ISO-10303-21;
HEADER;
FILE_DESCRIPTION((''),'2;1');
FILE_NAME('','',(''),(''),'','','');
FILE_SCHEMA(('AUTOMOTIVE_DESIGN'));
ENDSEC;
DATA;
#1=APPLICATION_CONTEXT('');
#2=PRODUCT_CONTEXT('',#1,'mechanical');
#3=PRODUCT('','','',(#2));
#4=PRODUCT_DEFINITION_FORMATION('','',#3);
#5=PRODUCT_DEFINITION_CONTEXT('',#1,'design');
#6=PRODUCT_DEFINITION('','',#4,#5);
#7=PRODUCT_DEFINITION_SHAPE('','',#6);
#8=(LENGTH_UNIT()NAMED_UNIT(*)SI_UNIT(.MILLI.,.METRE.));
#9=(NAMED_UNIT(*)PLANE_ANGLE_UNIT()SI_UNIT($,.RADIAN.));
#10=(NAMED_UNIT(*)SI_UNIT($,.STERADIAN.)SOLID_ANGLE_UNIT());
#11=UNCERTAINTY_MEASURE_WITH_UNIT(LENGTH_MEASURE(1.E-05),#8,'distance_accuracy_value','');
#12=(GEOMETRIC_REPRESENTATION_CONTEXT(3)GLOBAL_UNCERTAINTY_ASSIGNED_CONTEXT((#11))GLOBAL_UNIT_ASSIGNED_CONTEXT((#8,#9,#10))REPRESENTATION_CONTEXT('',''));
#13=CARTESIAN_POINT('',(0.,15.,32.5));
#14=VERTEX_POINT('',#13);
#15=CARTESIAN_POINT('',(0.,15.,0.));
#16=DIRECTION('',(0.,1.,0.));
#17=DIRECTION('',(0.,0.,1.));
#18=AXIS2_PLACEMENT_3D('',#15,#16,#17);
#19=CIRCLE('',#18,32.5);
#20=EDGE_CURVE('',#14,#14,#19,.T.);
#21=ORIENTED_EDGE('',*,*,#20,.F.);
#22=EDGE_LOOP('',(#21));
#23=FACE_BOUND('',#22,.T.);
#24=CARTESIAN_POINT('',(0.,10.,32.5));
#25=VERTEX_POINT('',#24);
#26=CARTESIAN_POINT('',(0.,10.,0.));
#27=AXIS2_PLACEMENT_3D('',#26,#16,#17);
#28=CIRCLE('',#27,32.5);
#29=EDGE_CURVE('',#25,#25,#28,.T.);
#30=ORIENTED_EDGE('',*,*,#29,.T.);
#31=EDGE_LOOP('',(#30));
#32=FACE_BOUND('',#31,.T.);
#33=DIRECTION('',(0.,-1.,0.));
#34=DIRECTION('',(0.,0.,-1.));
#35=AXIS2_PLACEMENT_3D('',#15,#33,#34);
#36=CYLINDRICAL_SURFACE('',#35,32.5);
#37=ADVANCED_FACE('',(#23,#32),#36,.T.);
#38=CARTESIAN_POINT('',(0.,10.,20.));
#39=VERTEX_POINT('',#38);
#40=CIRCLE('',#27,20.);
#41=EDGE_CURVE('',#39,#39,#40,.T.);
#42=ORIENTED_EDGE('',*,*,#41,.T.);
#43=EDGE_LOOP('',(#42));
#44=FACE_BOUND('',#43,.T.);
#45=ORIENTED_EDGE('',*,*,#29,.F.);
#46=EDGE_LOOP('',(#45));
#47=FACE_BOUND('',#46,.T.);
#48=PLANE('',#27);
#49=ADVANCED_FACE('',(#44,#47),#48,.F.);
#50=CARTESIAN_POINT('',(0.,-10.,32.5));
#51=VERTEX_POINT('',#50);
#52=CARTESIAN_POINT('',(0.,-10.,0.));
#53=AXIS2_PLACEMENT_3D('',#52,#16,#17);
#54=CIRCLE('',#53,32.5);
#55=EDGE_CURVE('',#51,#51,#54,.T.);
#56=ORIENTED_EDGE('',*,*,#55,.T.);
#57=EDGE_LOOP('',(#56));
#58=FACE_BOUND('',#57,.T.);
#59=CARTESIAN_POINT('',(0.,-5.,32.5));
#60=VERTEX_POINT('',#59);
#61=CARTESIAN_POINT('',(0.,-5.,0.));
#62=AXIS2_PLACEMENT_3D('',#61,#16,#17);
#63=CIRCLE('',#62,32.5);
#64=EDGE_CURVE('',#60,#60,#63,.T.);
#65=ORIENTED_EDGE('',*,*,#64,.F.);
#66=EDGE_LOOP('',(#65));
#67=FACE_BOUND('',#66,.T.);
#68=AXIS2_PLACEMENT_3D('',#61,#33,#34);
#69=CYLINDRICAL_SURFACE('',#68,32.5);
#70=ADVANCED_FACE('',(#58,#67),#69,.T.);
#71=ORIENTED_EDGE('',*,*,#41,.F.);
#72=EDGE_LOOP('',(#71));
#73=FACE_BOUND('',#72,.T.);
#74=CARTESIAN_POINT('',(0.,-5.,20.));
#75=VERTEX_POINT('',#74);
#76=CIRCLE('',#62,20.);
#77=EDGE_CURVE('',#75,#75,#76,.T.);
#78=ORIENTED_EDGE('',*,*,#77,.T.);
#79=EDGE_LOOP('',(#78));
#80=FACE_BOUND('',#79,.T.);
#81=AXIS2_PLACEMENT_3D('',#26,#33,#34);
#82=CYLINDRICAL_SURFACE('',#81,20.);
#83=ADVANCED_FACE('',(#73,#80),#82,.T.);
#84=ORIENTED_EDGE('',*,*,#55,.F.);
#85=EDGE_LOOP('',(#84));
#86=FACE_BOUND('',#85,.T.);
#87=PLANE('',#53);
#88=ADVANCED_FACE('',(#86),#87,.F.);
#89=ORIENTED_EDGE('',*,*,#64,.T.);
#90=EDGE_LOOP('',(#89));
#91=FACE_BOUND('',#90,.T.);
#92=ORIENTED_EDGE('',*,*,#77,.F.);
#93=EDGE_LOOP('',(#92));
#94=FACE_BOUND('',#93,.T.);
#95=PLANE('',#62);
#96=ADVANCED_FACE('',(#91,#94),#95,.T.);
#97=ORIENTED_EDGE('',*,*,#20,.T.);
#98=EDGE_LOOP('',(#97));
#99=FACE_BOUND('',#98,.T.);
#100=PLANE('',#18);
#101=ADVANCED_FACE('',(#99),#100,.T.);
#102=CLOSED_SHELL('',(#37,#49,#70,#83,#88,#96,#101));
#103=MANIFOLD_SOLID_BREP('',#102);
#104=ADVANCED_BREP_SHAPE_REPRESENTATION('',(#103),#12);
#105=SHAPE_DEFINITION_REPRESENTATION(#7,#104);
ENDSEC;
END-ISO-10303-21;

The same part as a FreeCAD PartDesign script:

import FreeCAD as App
import Part
import Sketcher
from FreeCAD import Vector

doc = App.newDocument("Part")
body = doc.addObject("PartDesign::Body", "Body")

sketch1 = doc.addObject("Sketcher::SketchObject", "Sketch")
body.addObject(sketch1)
sketch1.AttachmentSupport = (doc.XZ_Plane, [""])
sketch1.MapMode = "FlatFace"
sketch1.addGeometry(Part.Circle(Vector(0, 0, 0), Vector(0, 0, 1), 20), False)
sketch1.addConstraint([
    Sketcher.Constraint("Coincident", 0, 3, -1, 1),
    Sketcher.Constraint("Diameter", 0, 40.0),
])
pad1 = doc.addObject("PartDesign::Pad", "Pad")
body.addObject(pad1)
pad1.Profile = sketch1
pad1.Length = 20
pad1.Midplane = True

sketch2 = doc.addObject("Sketcher::SketchObject", "Sketch001")
body.addObject(sketch2)
sketch2.AttachmentSupport = (doc.XZ_Plane, [""])
sketch2.MapMode = "FlatFace"
sketch2.AttachmentOffset = App.Placement(Vector(0, 0, -10), App.Rotation())
sketch2.addGeometry(Part.Circle(Vector(0, 0, 0), Vector(0, 0, 1), 32), False)
sketch2.addConstraint([
    Sketcher.Constraint("Coincident", 0, 3, -1, 1),
    Sketcher.Constraint("Diameter", 0, 65.0),
])
pad2 = doc.addObject("PartDesign::Pad", "Pad001")
body.addObject(pad2)
pad2.Profile = sketch2
pad2.Length = 5
pad2.Reversed = True

sketch3 = doc.addObject("Sketcher::SketchObject", "Sketch002")
body.addObject(sketch3)
sketch3.AttachmentSupport = (doc.XZ_Plane, [""])
sketch3.MapMode = "FlatFace"
sketch3.AttachmentOffset = App.Placement(Vector(0, 0, 10), App.Rotation())
sketch3.addGeometry(Part.Circle(Vector(0, 0, 0), Vector(0, 0, 1), 32), False)
sketch3.addConstraint([
    Sketcher.Constraint("Coincident", 0, 3, -1, 1),
    Sketcher.Constraint("Diameter", 0, 65.0),
])
pad3 = doc.addObject("PartDesign::Pad", "Pad002")
body.addObject(pad3)
pad3.Profile = sketch3
pad3.Length = 5
pad3.Reversed = True

doc.recompute()
